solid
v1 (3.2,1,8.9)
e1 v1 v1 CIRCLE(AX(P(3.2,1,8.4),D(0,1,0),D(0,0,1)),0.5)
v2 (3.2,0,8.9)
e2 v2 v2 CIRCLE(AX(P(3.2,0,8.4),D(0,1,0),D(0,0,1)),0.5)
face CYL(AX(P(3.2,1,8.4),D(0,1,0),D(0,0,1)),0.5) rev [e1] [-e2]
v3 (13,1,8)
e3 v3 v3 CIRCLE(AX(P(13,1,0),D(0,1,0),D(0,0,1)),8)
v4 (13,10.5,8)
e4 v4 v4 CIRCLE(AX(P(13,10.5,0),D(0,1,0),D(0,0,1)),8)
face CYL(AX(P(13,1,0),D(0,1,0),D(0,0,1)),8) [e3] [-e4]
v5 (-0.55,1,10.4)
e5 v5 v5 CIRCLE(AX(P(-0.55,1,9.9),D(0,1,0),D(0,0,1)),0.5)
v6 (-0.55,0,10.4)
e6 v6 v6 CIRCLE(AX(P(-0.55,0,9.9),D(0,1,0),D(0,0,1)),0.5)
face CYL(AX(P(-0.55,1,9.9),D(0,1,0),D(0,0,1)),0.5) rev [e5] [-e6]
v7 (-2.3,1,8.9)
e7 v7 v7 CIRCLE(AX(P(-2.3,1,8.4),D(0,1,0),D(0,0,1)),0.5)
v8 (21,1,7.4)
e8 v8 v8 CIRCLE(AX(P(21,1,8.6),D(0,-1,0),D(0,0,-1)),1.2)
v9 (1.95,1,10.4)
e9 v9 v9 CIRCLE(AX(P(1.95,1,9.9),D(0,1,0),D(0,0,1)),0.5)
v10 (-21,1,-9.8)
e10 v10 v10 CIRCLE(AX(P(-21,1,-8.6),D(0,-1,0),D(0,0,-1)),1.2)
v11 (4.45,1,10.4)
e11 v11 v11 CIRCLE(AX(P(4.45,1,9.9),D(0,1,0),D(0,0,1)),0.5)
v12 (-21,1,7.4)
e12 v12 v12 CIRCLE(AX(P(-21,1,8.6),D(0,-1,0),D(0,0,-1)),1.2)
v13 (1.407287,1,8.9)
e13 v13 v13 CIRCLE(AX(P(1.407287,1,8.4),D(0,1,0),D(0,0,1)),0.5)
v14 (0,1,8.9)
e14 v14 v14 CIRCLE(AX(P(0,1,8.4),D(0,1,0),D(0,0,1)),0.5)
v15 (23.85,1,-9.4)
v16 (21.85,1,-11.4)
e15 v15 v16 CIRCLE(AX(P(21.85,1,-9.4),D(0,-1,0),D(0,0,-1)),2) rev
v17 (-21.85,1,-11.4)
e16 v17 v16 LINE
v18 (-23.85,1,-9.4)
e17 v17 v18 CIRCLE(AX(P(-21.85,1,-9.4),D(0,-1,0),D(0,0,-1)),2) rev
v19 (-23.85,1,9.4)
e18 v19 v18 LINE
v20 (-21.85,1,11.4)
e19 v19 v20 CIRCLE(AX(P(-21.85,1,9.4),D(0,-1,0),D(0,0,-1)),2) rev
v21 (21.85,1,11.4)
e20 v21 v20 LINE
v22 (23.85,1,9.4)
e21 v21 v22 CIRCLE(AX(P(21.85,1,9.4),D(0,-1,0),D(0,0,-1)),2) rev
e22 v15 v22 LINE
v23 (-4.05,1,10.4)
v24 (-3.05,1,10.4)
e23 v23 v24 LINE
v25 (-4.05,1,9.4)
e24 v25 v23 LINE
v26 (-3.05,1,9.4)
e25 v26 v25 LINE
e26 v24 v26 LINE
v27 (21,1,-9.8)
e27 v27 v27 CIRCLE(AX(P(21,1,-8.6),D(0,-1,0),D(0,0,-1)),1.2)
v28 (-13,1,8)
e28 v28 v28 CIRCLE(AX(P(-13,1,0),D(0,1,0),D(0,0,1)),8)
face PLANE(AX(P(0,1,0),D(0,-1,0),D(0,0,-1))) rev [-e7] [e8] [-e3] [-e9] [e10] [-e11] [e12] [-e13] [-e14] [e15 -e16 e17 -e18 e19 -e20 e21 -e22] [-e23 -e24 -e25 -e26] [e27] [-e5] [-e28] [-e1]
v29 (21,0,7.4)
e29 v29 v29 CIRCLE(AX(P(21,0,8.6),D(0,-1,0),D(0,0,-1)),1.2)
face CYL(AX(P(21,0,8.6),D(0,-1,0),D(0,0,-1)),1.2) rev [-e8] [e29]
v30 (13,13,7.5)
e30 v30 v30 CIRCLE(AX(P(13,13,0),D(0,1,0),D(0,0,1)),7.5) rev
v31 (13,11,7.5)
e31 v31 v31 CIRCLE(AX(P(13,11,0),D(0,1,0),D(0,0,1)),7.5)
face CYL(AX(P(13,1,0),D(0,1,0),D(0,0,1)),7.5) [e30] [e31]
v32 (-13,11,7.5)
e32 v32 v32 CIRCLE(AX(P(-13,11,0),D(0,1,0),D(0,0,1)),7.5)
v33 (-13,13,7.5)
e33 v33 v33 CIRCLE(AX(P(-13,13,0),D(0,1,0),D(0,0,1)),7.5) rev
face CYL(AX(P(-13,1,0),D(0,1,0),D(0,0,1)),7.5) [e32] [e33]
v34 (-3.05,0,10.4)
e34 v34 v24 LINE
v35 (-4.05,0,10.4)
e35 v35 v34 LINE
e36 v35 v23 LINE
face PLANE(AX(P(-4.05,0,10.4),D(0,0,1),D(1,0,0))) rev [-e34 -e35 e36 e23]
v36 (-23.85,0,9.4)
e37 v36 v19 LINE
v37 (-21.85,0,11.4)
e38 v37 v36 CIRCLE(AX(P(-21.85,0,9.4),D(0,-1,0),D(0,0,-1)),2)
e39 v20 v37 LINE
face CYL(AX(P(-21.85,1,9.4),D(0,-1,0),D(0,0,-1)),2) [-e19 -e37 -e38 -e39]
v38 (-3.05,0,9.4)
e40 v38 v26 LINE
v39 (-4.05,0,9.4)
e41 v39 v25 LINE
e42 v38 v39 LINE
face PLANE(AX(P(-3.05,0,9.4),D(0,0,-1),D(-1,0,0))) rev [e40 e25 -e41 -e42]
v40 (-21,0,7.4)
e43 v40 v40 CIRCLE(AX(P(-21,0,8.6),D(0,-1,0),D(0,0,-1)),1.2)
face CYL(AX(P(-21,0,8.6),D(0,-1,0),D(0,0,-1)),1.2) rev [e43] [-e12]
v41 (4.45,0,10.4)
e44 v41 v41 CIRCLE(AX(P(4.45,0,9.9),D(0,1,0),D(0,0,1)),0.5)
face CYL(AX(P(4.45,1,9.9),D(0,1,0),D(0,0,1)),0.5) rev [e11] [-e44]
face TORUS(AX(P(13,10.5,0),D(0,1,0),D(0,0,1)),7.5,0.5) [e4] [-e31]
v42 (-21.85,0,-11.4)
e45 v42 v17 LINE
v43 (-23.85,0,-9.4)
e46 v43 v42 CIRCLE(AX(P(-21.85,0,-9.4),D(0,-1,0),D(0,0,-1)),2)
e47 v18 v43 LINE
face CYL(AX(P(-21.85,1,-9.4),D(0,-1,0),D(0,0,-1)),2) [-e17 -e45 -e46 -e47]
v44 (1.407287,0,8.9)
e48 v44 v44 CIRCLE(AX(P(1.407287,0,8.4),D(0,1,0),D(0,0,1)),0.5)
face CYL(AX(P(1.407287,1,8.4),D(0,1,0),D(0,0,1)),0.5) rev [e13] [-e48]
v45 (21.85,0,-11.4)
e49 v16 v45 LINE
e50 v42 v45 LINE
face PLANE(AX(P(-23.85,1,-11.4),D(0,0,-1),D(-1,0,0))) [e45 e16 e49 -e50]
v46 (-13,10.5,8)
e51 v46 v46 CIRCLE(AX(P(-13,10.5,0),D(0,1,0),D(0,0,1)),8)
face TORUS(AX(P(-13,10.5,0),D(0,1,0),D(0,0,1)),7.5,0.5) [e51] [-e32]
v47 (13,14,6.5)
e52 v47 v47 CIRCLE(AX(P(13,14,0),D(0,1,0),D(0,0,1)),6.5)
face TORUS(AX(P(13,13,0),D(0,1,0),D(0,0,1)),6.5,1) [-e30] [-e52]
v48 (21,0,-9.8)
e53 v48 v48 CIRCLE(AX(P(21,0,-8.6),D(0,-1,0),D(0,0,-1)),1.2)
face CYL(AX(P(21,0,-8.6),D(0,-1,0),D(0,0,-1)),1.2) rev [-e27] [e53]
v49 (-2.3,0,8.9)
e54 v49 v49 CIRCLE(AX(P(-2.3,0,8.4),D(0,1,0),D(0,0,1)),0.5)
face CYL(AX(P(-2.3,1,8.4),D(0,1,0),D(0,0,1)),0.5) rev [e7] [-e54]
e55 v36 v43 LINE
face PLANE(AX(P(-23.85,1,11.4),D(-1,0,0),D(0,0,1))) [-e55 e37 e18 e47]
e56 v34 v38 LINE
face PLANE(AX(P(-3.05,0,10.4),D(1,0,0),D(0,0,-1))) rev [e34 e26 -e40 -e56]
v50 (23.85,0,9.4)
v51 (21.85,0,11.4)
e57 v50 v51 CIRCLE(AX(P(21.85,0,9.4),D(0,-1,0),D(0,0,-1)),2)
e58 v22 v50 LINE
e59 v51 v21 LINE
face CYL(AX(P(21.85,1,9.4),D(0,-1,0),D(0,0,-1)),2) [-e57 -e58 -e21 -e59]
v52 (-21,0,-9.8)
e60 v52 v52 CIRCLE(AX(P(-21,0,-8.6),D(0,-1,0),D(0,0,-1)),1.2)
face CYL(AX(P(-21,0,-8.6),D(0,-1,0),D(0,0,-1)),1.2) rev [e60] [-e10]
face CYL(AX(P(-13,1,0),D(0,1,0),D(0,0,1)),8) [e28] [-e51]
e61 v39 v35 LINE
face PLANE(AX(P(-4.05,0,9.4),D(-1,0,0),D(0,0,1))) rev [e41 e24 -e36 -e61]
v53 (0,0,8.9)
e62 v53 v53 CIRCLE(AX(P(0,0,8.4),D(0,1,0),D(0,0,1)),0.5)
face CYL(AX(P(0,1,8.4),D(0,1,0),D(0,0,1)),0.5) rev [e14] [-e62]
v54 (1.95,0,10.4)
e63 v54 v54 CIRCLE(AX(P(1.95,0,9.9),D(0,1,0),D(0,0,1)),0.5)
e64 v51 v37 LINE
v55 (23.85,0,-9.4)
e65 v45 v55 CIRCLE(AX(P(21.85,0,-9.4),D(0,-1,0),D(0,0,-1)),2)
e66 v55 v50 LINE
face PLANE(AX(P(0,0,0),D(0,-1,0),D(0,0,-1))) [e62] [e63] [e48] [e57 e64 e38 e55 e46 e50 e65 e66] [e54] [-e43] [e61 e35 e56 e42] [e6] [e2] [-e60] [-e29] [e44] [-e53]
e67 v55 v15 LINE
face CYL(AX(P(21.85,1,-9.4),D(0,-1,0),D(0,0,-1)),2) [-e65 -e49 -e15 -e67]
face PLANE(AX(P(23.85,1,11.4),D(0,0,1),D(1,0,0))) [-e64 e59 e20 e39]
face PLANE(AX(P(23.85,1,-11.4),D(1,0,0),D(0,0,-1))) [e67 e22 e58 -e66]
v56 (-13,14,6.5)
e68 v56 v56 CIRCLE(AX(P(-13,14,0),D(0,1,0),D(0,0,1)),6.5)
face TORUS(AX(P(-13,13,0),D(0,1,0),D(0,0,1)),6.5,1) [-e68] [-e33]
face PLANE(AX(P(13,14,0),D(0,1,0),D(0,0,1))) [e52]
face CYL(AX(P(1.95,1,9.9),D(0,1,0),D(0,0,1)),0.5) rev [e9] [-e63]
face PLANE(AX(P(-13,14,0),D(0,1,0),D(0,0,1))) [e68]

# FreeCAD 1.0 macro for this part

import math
import FreeCAD as App
import Part
import Sketcher


def edges_at(feature, points):
    """Names of the edges that pass closest to the given points."""
    edges = feature.Shape.Edges
    near = lambda p: min(range(len(edges)), key=lambda i: edges[i].distToShape(Part.Vertex(*p))[0])
    return sorted({f"Edge{near(p) + 1}" for p in points})

doc = App.newDocument("Part")
body = doc.addObject("PartDesign::Body", "Body")

sketch1 = body.newObject("Sketcher::SketchObject", "Sketch")
sketch1.AttachmentSupport = (doc.getObject("XZ_Plane"), [""])
sketch1.MapMode = "FlatFace"
sketch1.addGeometry([
    Part.LineSegment(App.Vector(-23.85, 11.4, 0), App.Vector(-23.85, -11.4, 0)),
    Part.LineSegment(App.Vector(-23.85, -11.4, 0), App.Vector(23.85, -11.4, 0)),
    Part.LineSegment(App.Vector(23.85, -11.4, 0), App.Vector(23.85, 11.4, 0)),
    Part.LineSegment(App.Vector(23.85, 11.4, 0), App.Vector(-23.85, 11.4, 0)),
], False)
sketch1.addConstraint([
    Sketcher.Constraint("Coincident", 0, 2, 1, 1),
    Sketcher.Constraint("Coincident", 1, 2, 2, 1),
    Sketcher.Constraint("Coincident", 2, 2, 3, 1),
    Sketcher.Constraint("Coincident", 3, 2, 0, 1),
    Sketcher.Constraint("Vertical", 0),
    Sketcher.Constraint("Horizontal", 1),
    Sketcher.Constraint("Vertical", 2),
    Sketcher.Constraint("Horizontal", 3),
    Sketcher.Constraint("Symmetric", 0, 2, 2, 2, -1, 1),
    Sketcher.Constraint("DistanceX", 1, 1, 1, 2, 47.7),
    Sketcher.Constraint("DistanceY", 0, 2, 0, 1, 22.8),
])
pad1 = body.newObject("PartDesign::Pad", "Pad")
pad1.Profile = sketch1
pad1.Length = 1
pad1.Reversed = True

sketch2 = body.newObject("Sketcher::SketchObject", "Sketch001")
sketch2.AttachmentSupport = (doc.getObject("XZ_Plane"), [""])
sketch2.MapMode = "FlatFace"
sketch2.AttachmentOffset = App.Placement(App.Vector(0, 0, -1), App.Rotation())
sketch2.addGeometry([
    Part.LineSegment(App.Vector(-3.05, 10.4, 0), App.Vector(-3.05, 9.4, 0)),
    Part.LineSegment(App.Vector(-3.05, 9.4, 0), App.Vector(-4.05, 9.4, 0)),
    Part.LineSegment(App.Vector(-4.05, 9.4, 0), App.Vector(-4.05, 10.4, 0)),
    Part.LineSegment(App.Vector(-4.05, 10.4, 0), App.Vector(-3.05, 10.4, 0)),
], False)
sketch2.addConstraint([
    Sketcher.Constraint("Coincident", 0, 2, 1, 1),
    Sketcher.Constraint("Coincident", 1, 2, 2, 1),
    Sketcher.Constraint("Coincident", 2, 2, 3, 1),
    Sketcher.Constraint("Coincident", 3, 2, 0, 1),
    Sketcher.Constraint("Vertical", 0),
    Sketcher.Constraint("Horizontal", 1),
    Sketcher.Constraint("Vertical", 2),
    Sketcher.Constraint("Horizontal", 3),
    Sketcher.Constraint("Equal", 3, 0),
    Sketcher.Constraint("DistanceX", 1, 2, 1, 1, 1.0),
    Sketcher.Constraint("DistanceY", -1, 1, 0, 2, 9.4),
    Sketcher.Constraint("DistanceX", 0, 2, -1, 1, 3.05),
])
pocket1 = body.newObject("PartDesign::Pocket", "Pocket")
pocket1.Profile = sketch2
pocket1.Type = "ThroughAll"
pocket1.Reversed = True

sketch3 = body.newObject("Sketcher::SketchObject", "Sketch002")
sketch3.AttachmentSupport = (doc.getObject("XY_Plane"), [""])
sketch3.MapMode = "FlatFace"
sketch3.addGeometry([
    Part.LineSegment(App.Vector(21, 1, 0), App.Vector(13, 1, 0)),
    Part.LineSegment(App.Vector(13, 1, 0), App.Vector(13, 14, 0)),
    Part.LineSegment(App.Vector(13, 14, 0), App.Vector(20.5, 14, 0)),
    Part.LineSegment(App.Vector(20.5, 14, 0), App.Vector(20.5, 11, 0)),
    Part.ArcOfCircle(Part.Circle(App.Vector(20.5, 10.5, 0), App.Vector(0, 0, 1), 0.5), math.radians(0), math.radians(90)),
    Part.LineSegment(App.Vector(21, 10.5, 0), App.Vector(21, 1, 0)),
], False)
sketch3.addGeometry(Part.LineSegment(App.Vector(13, 1, 0), App.Vector(13, 14, 0)), True)
sketch3.addConstraint([
    Sketcher.Constraint("Coincident", 0, 2, 1, 1),
    Sketcher.Constraint("Coincident", 1, 2, 2, 1),
    Sketcher.Constraint("Coincident", 2, 2, 3, 1),
    Sketcher.Constraint("Coincident", 3, 2, 4, 2),
    Sketcher.Constraint("Tangent", 4, 1, 5, 1),
    Sketcher.Constraint("Coincident", 5, 2, 0, 1),
    Sketcher.Constraint("Horizontal", 0),
    Sketcher.Constraint("Vertical", 1),
    Sketcher.Constraint("Horizontal", 2),
    Sketcher.Constraint("Vertical", 3),
    Sketcher.Constraint("Vertical", 5),
    Sketcher.Constraint("Vertical", 6),
    Sketcher.Constraint("Coincident", 6, 1, 0, 2),
    Sketcher.Constraint("Horizontal", 2, 2, 6, 2),
    Sketcher.Constraint("Vertical", 4, 3, 2, 2),
    Sketcher.Constraint("Radius", 4, 0.5),
    Sketcher.Constraint("DistanceX", 0, 2, 0, 1, 8.0),
    Sketcher.Constraint("DistanceY", 1, 1, 1, 2, 13.0),
    Sketcher.Constraint("DistanceY", 3, 2, 3, 1, 3.0),
    Sketcher.Constraint("DistanceX", -1, 1, 0, 2, 13.0),
    Sketcher.Constraint("DistanceY", -1, 1, 0, 2, 1.0),
])
revolution = body.newObject("PartDesign::Revolution", "Revolution")
revolution.Profile = sketch3
revolution.ReferenceAxis = (sketch3, ["Axis0"])
revolution.Angle = 360

sketch4 = body.newObject("Sketcher::SketchObject", "Sketch003")
sketch4.AttachmentSupport = (doc.getObject("XY_Plane"), [""])
sketch4.MapMode = "FlatFace"
sketch4.addGeometry([
    Part.LineSegment(App.Vector(-5, 1, 0), App.Vector(-13, 1, 0)),
    Part.LineSegment(App.Vector(-13, 1, 0), App.Vector(-13, 14, 0)),
    Part.LineSegment(App.Vector(-13, 14, 0), App.Vector(-5.5, 14, 0)),
    Part.LineSegment(App.Vector(-5.5, 14, 0), App.Vector(-5.5, 11, 0)),
    Part.ArcOfCircle(Part.Circle(App.Vector(-5.5, 10.5, 0), App.Vector(0, 0, 1), 0.5), math.radians(0), math.radians(90)),
    Part.LineSegment(App.Vector(-5, 10.5, 0), App.Vector(-5, 1, 0)),
], False)
sketch4.addGeometry(Part.LineSegment(App.Vector(-13, 1, 0), App.Vector(-13, 14, 0)), True)
sketch4.addConstraint([
    Sketcher.Constraint("Coincident", 0, 2, 1, 1),
    Sketcher.Constraint("Coincident", 1, 2, 2, 1),
    Sketcher.Constraint("Coincident", 2, 2, 3, 1),
    Sketcher.Constraint("Coincident", 3, 2, 4, 2),
    Sketcher.Constraint("Tangent", 4, 1, 5, 1),
    Sketcher.Constraint("Coincident", 5, 2, 0, 1),
    Sketcher.Constraint("Horizontal", 0),
    Sketcher.Constraint("Vertical", 1),
    Sketcher.Constraint("Horizontal", 2),
    Sketcher.Constraint("Vertical", 3),
    Sketcher.Constraint("Vertical", 5),
    Sketcher.Constraint("Vertical", 6),
    Sketcher.Constraint("Coincident", 6, 1, 0, 2),
    Sketcher.Constraint("Horizontal", 2, 2, 6, 2),
    Sketcher.Constraint("Vertical", 4, 3, 2, 2),
    Sketcher.Constraint("Radius", 4, 0.5),
    Sketcher.Constraint("DistanceX", 0, 2, 0, 1, 8.0),
    Sketcher.Constraint("DistanceY", 1, 1, 1, 2, 13.0),
    Sketcher.Constraint("DistanceY", 3, 2, 3, 1, 3.0),
    Sketcher.Constraint("DistanceX", 0, 2, -1, 1, 13.0),
    Sketcher.Constraint("DistanceY", -1, 1, 0, 2, 1.0),
])
revolution2 = body.newObject("PartDesign::Revolution", "Revolution001")
revolution2.Profile = sketch4
revolution2.ReferenceAxis = (sketch4, ["Axis0"])
revolution2.Angle = 360

sketch5 = body.newObject("Sketcher::SketchObject", "Sketch004")
sketch5.AttachmentSupport = (doc.getObject("XZ_Plane"), [""])
sketch5.MapMode = "FlatFace"
sketch5.AttachmentOffset = App.Placement(App.Vector(0, 0, -1), App.Rotation())
sketch5.addGeometry([
    Part.Circle(App.Vector(-0.55, 9.9, 0), App.Vector(0, 0, 1), 0.5),
    Part.Circle(App.Vector(1.95, 9.9, 0), App.Vector(0, 0, 1), 0.5),
    Part.Circle(App.Vector(4.45, 9.9, 0), App.Vector(0, 0, 1), 0.5),
    Part.Circle(App.Vector(-2.3, 8.4, 0), App.Vector(0, 0, 1), 0.5),
    Part.Circle(App.Vector(0, 8.4, 0), App.Vector(0, 0, 1), 0.5),
    Part.Circle(App.Vector(3.2, 8.4, 0), App.Vector(0, 0, 1), 0.5),
    Part.Circle(App.Vector(1.407287, 8.4, 0), App.Vector(0, 0, 1), 0.5),
], False)
sketch5.addConstraint([
    Sketcher.Constraint("Equal", 0, 1),
    Sketcher.Constraint("Equal", 1, 2),
    Sketcher.Constraint("Equal", 2, 3),
    Sketcher.Constraint("Equal", 3, 4),
    Sketcher.Constraint("Equal", 4, 5),
    Sketcher.Constraint("Equal", 5, 6),
    Sketcher.Constraint("PointOnObject", 4, 3, -2),
    Sketcher.Constraint("Horizontal", 0, 3, 1, 3),
    Sketcher.Constraint("Horizontal", 1, 3, 2, 3),
    Sketcher.Constraint("Horizontal", 3, 3, 4, 3),
    Sketcher.Constraint("Horizontal", 4, 3, 5, 3),
    Sketcher.Constraint("Horizontal", 5, 3, 6, 3),
    Sketcher.Constraint("Diameter", 0, 1.0),
    Sketcher.Constraint("DistanceX", 0, 3, 2, 3, 5.0),
    Sketcher.Constraint("DistanceY", -1, 1, 0, 3, 9.9),
    Sketcher.Constraint("DistanceX", 3, 3, -1, 1, 2.3),
    Sketcher.Constraint("DistanceY", -1, 1, 3, 3, 8.4),
    Sketcher.Constraint("DistanceX", -1, 1, 5, 3, 3.2),
    Sketcher.Constraint("DistanceX", 0, 3, 1, 3, 2.5),
    Sketcher.Constraint("DistanceX", 0, 3, -1, 1, 0.55),
    Sketcher.Constraint("DistanceX", -1, 1, 6, 3, 1.407287),
])
doc.recompute()
hole = body.newObject("PartDesign::Hole", "Hole")
hole.Profile = sketch5
hole.ThreadType = "None"
hole.Diameter = 1
hole.DepthType = "ThroughAll"
hole.Reversed = True

sketch6 = body.newObject("Sketcher::SketchObject", "Sketch005")
sketch6.AttachmentSupport = (doc.getObject("XZ_Plane"), [""])
sketch6.MapMode = "FlatFace"
sketch6.addGeometry([
    Part.Circle(App.Vector(-21, -8.6, 0), App.Vector(0, 0, 1), 1.2),
    Part.Circle(App.Vector(21, -8.6, 0), App.Vector(0, 0, 1), 1.2),
    Part.Circle(App.Vector(21, 8.6, 0), App.Vector(0, 0, 1), 1.2),
    Part.Circle(App.Vector(-21, 8.6, 0), App.Vector(0, 0, 1), 1.2),
], False)
sketch6.addConstraint([
    Sketcher.Constraint("Equal", 0, 1),
    Sketcher.Constraint("Equal", 1, 2),
    Sketcher.Constraint("Equal", 2, 3),
    Sketcher.Constraint("Symmetric", 0, 3, 2, 3, -1, 1),
    Sketcher.Constraint("Symmetric", 1, 3, 3, 3, -1, 1),
    Sketcher.Constraint("Symmetric", 0, 3, 1, 3, -2),
    Sketcher.Constraint("Diameter", 0, 2.4),
    Sketcher.Constraint("DistanceX", 0, 3, -1, 1, 21.0),
    Sketcher.Constraint("DistanceY", 0, 3, -1, 1, 8.6),
])
doc.recompute()
hole2 = body.newObject("PartDesign::Hole", "Hole001")
hole2.Profile = sketch6
hole2.ThreadType = "None"
hole2.Diameter = 2.4
hole2.DepthType = "Dimension"
hole2.Depth = 14
hole2.DrillPoint = "Flat"
doc.recompute()

fillet = body.newObject("PartDesign::Fillet", "Fillet")
fillet.Base = (hole2, edges_at(hole2, [(13, 14, -7.5), (-13, 14, -7.5)]))
fillet.Radius = 1
doc.recompute()

fillet2 = body.newObject("PartDesign::Fillet", "Fillet001")
fillet2.Base = (fillet, edges_at(fillet, [
    (-23.85, 0.5, 11.4),
    (23.85, 0.5, 11.4),
    (23.85, 0.5, -11.4),
    (-23.85, 0.5, -11.4),
]))
fillet2.Radius = 2

doc.recompute()
